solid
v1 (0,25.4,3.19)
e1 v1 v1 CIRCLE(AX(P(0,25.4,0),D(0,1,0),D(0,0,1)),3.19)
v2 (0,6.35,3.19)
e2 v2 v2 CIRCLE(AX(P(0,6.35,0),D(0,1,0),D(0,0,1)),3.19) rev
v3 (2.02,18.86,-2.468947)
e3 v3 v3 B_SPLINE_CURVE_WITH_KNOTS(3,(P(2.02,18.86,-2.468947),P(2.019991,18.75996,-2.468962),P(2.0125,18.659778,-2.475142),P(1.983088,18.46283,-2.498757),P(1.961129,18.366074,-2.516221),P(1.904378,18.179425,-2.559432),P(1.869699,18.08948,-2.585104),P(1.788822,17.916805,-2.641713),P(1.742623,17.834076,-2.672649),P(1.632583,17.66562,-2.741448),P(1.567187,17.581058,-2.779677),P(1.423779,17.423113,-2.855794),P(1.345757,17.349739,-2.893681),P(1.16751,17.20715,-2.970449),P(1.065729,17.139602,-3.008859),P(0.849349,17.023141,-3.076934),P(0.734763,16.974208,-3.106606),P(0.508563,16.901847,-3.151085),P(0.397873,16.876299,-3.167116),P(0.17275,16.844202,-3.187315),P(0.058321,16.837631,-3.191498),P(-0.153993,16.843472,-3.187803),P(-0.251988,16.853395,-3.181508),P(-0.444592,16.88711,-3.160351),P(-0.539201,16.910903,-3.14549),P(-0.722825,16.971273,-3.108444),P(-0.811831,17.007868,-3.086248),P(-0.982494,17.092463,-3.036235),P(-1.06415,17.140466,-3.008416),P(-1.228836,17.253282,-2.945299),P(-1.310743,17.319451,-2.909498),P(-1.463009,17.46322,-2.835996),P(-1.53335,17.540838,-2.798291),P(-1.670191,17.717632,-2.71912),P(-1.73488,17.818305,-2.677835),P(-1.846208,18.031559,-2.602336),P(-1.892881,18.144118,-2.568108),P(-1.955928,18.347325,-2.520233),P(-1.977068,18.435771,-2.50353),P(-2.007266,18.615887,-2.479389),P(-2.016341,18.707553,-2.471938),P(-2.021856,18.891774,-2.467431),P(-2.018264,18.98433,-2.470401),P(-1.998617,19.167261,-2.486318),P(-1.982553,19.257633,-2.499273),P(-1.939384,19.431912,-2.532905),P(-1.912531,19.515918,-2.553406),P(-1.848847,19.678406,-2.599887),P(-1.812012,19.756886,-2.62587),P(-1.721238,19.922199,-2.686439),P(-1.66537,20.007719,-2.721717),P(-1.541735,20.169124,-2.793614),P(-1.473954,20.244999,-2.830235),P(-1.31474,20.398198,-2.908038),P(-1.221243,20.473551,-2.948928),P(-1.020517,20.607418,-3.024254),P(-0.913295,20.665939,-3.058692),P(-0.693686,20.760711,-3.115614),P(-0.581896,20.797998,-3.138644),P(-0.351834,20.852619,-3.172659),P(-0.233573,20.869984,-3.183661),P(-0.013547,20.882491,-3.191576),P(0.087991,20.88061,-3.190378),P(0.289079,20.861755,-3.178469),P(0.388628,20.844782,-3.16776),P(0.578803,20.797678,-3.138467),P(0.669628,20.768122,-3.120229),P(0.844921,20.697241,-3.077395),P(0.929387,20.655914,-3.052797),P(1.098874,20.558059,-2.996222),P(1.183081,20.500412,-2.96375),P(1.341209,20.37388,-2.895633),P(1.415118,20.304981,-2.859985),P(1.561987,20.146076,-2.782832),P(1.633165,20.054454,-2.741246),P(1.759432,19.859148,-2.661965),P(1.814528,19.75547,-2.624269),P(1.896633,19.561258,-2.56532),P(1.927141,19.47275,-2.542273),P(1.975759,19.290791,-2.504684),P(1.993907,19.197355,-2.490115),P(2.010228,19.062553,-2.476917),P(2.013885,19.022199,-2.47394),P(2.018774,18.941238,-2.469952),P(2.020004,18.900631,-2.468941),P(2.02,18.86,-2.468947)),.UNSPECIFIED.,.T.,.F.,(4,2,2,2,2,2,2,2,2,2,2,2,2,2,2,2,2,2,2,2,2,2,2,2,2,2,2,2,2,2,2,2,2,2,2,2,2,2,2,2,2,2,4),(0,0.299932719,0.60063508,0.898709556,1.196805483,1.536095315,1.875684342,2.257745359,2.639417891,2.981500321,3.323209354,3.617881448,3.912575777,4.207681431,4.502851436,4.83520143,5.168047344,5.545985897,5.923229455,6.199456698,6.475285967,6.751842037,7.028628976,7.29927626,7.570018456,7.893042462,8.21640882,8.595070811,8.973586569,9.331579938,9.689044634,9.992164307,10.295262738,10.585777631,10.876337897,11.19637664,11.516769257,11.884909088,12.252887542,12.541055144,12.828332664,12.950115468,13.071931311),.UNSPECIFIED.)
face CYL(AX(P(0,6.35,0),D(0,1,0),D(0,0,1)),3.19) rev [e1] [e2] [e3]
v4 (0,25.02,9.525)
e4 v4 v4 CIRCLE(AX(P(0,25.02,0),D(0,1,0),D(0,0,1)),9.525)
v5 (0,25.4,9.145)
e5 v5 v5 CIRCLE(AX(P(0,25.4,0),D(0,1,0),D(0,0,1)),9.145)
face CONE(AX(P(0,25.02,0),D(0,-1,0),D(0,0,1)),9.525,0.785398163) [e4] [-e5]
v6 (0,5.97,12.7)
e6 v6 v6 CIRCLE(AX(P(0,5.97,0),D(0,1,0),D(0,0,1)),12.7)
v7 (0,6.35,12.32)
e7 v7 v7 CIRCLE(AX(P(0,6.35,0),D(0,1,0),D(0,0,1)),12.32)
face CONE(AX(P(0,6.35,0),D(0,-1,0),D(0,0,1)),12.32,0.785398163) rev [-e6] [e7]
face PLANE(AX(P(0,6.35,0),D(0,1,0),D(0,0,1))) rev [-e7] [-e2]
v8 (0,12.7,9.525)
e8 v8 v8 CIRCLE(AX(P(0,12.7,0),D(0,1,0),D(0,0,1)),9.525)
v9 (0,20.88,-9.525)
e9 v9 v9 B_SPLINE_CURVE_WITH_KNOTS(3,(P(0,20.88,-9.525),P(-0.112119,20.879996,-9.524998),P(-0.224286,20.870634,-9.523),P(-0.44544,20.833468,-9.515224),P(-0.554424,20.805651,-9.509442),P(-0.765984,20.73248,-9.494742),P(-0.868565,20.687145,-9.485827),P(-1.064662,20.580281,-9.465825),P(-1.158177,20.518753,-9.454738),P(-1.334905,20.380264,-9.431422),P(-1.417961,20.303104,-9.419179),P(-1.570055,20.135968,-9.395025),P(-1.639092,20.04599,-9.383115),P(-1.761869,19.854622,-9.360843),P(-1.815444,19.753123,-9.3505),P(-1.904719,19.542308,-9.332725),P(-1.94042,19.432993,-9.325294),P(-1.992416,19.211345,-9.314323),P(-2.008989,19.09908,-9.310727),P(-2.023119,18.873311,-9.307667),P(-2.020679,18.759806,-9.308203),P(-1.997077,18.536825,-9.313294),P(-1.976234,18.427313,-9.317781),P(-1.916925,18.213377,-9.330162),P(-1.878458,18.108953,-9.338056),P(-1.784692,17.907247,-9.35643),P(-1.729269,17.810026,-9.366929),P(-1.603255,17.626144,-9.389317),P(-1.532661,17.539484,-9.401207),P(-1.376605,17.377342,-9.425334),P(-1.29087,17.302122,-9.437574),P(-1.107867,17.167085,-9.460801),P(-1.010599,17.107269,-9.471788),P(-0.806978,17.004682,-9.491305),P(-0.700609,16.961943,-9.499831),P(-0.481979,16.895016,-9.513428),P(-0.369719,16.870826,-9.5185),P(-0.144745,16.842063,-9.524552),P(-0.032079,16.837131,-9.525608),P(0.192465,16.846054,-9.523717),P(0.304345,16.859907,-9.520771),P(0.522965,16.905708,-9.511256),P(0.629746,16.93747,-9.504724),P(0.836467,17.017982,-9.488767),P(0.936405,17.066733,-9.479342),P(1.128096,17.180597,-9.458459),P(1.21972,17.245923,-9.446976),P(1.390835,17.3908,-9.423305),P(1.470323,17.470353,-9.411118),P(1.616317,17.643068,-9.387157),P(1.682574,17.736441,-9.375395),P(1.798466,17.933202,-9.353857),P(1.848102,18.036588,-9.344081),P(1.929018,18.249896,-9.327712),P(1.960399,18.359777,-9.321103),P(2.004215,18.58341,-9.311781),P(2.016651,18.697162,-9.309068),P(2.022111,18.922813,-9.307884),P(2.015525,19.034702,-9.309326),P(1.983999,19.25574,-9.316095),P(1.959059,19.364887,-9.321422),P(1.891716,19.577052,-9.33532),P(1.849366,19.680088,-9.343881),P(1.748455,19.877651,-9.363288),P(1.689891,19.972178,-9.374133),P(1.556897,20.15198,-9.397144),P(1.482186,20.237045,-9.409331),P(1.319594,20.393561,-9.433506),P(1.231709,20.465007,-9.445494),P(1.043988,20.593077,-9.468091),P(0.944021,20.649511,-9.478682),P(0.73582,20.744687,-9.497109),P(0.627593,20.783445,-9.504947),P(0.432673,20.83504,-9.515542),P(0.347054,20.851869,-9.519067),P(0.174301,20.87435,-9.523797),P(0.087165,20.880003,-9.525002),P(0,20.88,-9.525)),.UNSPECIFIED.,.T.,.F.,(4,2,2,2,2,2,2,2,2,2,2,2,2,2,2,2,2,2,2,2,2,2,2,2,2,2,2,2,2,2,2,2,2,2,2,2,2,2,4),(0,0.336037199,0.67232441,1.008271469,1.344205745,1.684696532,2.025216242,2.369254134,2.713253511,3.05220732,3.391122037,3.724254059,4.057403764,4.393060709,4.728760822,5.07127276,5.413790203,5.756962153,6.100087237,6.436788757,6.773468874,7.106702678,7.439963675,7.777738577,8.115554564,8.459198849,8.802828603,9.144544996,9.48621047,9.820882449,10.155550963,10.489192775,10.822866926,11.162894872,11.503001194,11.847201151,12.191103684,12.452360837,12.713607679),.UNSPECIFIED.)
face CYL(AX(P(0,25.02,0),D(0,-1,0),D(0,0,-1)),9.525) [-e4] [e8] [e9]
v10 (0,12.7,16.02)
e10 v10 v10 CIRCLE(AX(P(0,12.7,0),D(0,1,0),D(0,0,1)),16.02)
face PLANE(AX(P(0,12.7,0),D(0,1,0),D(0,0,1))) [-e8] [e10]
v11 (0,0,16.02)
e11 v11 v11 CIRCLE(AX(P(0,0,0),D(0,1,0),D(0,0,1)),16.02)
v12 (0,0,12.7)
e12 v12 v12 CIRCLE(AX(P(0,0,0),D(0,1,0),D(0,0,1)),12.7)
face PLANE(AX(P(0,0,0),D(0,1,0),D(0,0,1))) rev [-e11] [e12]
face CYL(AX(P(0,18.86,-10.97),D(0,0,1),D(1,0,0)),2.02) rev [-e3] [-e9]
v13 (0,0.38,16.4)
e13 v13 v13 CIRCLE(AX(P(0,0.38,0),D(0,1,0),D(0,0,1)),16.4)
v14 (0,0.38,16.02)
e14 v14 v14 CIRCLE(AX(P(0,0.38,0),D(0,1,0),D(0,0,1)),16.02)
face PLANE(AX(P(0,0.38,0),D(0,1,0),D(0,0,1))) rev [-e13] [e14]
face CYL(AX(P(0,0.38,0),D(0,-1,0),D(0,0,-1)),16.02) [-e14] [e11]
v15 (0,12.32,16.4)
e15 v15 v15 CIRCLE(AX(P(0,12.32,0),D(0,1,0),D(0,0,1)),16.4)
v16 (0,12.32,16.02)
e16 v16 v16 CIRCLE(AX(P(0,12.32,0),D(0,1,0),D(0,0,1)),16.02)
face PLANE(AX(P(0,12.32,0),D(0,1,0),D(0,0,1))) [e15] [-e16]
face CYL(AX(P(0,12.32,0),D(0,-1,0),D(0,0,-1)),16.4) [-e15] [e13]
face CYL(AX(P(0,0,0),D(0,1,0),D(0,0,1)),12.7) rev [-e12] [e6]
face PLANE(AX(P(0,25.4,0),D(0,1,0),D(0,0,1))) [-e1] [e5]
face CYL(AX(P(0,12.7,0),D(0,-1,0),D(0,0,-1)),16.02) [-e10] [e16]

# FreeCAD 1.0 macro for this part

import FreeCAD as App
import Part
import Sketcher
from FreeCAD import Vector
Q = App.Units.Quantity

doc = App.newDocument("Part")
body = doc.addObject("PartDesign::Body", "Body")

# Sketch on XZ plane
sketch1 = body.newObject("Sketcher::SketchObject", "Sketch")
sketch1.AttachmentSupport = (doc.getObject("XZ_Plane"), [""])
sketch1.MapMode = "FlatFace"
sketch1.addGeometry(Part.Circle(Vector(0, 0, 0), Vector(0, 0, 1), 16), False)
sketch1.addConstraint([
    Sketcher.Constraint("Coincident", 0, 3, -1, 1),
    Sketcher.Constraint("Diameter", 0, 32.04),
])
pad1 = body.newObject("PartDesign::Pad", "Pad")
pad1.Profile = sketch1
pad1.Length = 0.38
pad1.Reversed = True

# Sketch on XZ plane
sketch2 = body.newObject("Sketcher::SketchObject", "Sketch001")
sketch2.AttachmentSupport = (doc.getObject("XZ_Plane"), [""])
sketch2.MapMode = "FlatFace"
sketch2.AttachmentOffset = App.Placement(Vector(0, 0, -0.38), App.Rotation())
sketch2.addGeometry(Part.Circle(Vector(0, 0, 0), Vector(0, 0, 1), 16), False)
sketch2.addConstraint([
    Sketcher.Constraint("Coincident", 0, 3, -1, 1),
    Sketcher.Constraint("Diameter", 0, 32.8),
])
pad2 = body.newObject("PartDesign::Pad", "Pad001")
pad2.Profile = sketch2
pad2.Length = 11.94
pad2.Reversed = True

# Sketch on XZ plane
sketch3 = body.newObject("Sketcher::SketchObject", "Sketch002")
sketch3.AttachmentSupport = (doc.getObject("XZ_Plane"), [""])
sketch3.MapMode = "FlatFace"
sketch3.AttachmentOffset = App.Placement(Vector(0, 0, -12.32), App.Rotation())
sketch3.addGeometry(Part.Circle(Vector(0, 0, 0), Vector(0, 0, 1), 16), False)
sketch3.addConstraint([
    Sketcher.Constraint("Coincident", 0, 3, -1, 1),
    Sketcher.Constraint("Diameter", 0, 32.04),
])
pad3 = body.newObject("PartDesign::Pad", "Pad002")
pad3.Profile = sketch3
pad3.Length = 0.38
pad3.Reversed = True

# Sketch on XZ plane
sketch4 = body.newObject("Sketcher::SketchObject", "Sketch003")
sketch4.AttachmentSupport = (doc.getObject("XZ_Plane"), [""])
sketch4.MapMode = "FlatFace"
sketch4.AttachmentOffset = App.Placement(Vector(0, 0, -0.5 * 25.4), App.Rotation())
sketch4.addGeometry(Part.Circle(Vector(0, 0, 0), Vector(0, 0, 1), 10), False)
sketch4.addConstraint([
    Sketcher.Constraint("Coincident", 0, 3, -1, 1),
    Sketcher.Constraint("Diameter", 0, Q("0.75 in")),
])
pad4 = body.newObject("PartDesign::Pad", "Pad003")
pad4.Profile = sketch4
pad4.Length = 12.32
pad4.Reversed = True

# Sketch on XZ plane
sketch5 = body.newObject("Sketcher::SketchObject", "Sketch004")
sketch5.AttachmentSupport = (doc.getObject("XZ_Plane"), [""])
sketch5.MapMode = "FlatFace"
sketch5.AttachmentOffset = App.Placement(Vector(0, 0, -25.02), App.Rotation())
sketch5.addGeometry(Part.Circle(Vector(0, 0, 0), Vector(0, 0, 1), 10), False)
sketch5.addConstraint([
    Sketcher.Constraint("Coincident", 0, 3, -1, 1),
    Sketcher.Constraint("Diameter", 0, Q("0.75 in")),
])
pad5 = body.newObject("PartDesign::Pad", "Pad004")
pad5.Profile = sketch5
pad5.Length = 0.38
pad5.Reversed = True
pad5.TaperAngle = -45

# Sketch on XZ plane
sketch6 = body.newObject("Sketcher::SketchObject", "Sketch005")
sketch6.AttachmentSupport = (doc.getObject("XZ_Plane"), [""])
sketch6.MapMode = "FlatFace"
sketch6.AttachmentOffset = App.Placement(Vector(0, 0, -1 * 25.4), App.Rotation())
sketch6.addGeometry(Part.Circle(Vector(0, 0, 0), Vector(0, 0, 1), 3.2), False)
sketch6.addConstraint([
    Sketcher.Constraint("Coincident", 0, 3, -1, 1),
    Sketcher.Constraint("Diameter", 0, 6.38),
])
pocket1 = body.newObject("PartDesign::Pocket", "Pocket")
pocket1.Profile = sketch6
pocket1.Length = Q("0.75 in")
pocket1.Reversed = True

# Sketch on XZ plane
sketch7 = body.newObject("Sketcher::SketchObject", "Sketch006")
sketch7.AttachmentSupport = (doc.getObject("XZ_Plane"), [""])
sketch7.MapMode = "FlatFace"
sketch7.AttachmentOffset = App.Placement(Vector(0, 0, -0.25 * 25.4), App.Rotation())
sketch7.addGeometry(Part.Circle(Vector(0, 0, 0), Vector(0, 0, 1), 12), False)
sketch7.addConstraint([
    Sketcher.Constraint("Coincident", 0, 3, -1, 1),
    Sketcher.Constraint("Diameter", 0, 24.64),
])
pocket2 = body.newObject("PartDesign::Pocket", "Pocket001")
pocket2.Profile = sketch7
pocket2.Length = 0.38
pocket2.Reversed = True
pocket2.TaperAngle = 45

# Sketch on XZ plane
sketch8 = body.newObject("Sketcher::SketchObject", "Sketch007")
sketch8.AttachmentSupport = (doc.getObject("XZ_Plane"), [""])
sketch8.MapMode = "FlatFace"
sketch8.AttachmentOffset = App.Placement(Vector(0, 0, -5.97), App.Rotation())
sketch8.addGeometry(Part.Circle(Vector(0, 0, 0), Vector(0, 0, 1), 13), False)
sketch8.addConstraint([
    Sketcher.Constraint("Coincident", 0, 3, -1, 1),
    Sketcher.Constraint("Diameter", 0, Q("1 in")),
])
pocket3 = body.newObject("PartDesign::Pocket", "Pocket002")
pocket3.Profile = sketch8
pocket3.Length = 5.97
pocket3.Reversed = True

# Sketch on XY plane
sketch9 = body.newObject("Sketcher::SketchObject", "Sketch008")
sketch9.AttachmentSupport = (doc.getObject("XY_Plane"), [""])
sketch9.MapMode = "FlatFace"
sketch9.addGeometry(Part.Circle(Vector(0, 18.9, 0), Vector(0, 0, 1), 2), False)
sketch9.addConstraint([
    Sketcher.Constraint("PointOnObject", 0, 3, -2),
    Sketcher.Constraint("Diameter", 0, 4.04),
    Sketcher.Constraint("DistanceY", -1, 1, 0, 3, 18.86),
])
pocket4 = body.newObject("PartDesign::Pocket", "Pocket003")
pocket4.Profile = sketch9
pocket4.Length = 10.97

doc.recompute()
